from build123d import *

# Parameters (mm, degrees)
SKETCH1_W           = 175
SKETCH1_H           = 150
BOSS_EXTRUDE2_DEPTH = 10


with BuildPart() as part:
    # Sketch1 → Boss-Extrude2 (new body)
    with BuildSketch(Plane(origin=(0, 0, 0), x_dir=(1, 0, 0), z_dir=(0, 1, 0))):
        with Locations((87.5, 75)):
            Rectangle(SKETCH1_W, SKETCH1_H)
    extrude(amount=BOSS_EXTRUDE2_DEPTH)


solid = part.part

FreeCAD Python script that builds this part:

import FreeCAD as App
import Part
import Sketcher
from FreeCAD import Vector
Q = App.Units.Quantity


def add_polygon(sketch, points):
    """Adds a closed chain of lines whose ends are joined by coincident constraints."""
    first, n = sketch.GeometryCount, len(points)
    for a, b in zip(points, points[1:] + points[:1]):
        sketch.addGeometry(Part.LineSegment(App.Vector(*a, 0), App.Vector(*b, 0)), False)
    for i in range(n):
        sketch.addConstraint(Sketcher.Constraint("Coincident", first + i, 2, first + (i + 1) % n, 1))

doc = App.newDocument("Part")
body = doc.addObject("PartDesign::Body", "Body")

# Sketch on XZ plane
sketch1 = body.newObject("Sketcher::SketchObject", "Sketch")
sketch1.AttachmentSupport = (doc.getObject("XZ_Plane"), [""])
sketch1.MapMode = "FlatFace"
add_polygon(sketch1, [(0, -150), (0, 0), (175, 0), (175, -150)])  # lines 0-3
sketch1.addConstraint([
    Sketcher.Constraint("Vertical", 0),
    Sketcher.Constraint("Horizontal", 1),
    Sketcher.Constraint("Vertical", 2),
    Sketcher.Constraint("Horizontal", 3),
    Sketcher.Constraint("Coincident", 0, 2, -1, 1),
    Sketcher.Constraint("DistanceX", 1, 1, 1, 2, Q("175 mm")),
    Sketcher.Constraint("DistanceY", 0, 1, 0, 2, Q("150 mm")),
])
pad1 = body.newObject("PartDesign::Pad", "Pad")
pad1.Profile = sketch1
pad1.Length = 10
pad1.Reversed = True

doc.recompute()
